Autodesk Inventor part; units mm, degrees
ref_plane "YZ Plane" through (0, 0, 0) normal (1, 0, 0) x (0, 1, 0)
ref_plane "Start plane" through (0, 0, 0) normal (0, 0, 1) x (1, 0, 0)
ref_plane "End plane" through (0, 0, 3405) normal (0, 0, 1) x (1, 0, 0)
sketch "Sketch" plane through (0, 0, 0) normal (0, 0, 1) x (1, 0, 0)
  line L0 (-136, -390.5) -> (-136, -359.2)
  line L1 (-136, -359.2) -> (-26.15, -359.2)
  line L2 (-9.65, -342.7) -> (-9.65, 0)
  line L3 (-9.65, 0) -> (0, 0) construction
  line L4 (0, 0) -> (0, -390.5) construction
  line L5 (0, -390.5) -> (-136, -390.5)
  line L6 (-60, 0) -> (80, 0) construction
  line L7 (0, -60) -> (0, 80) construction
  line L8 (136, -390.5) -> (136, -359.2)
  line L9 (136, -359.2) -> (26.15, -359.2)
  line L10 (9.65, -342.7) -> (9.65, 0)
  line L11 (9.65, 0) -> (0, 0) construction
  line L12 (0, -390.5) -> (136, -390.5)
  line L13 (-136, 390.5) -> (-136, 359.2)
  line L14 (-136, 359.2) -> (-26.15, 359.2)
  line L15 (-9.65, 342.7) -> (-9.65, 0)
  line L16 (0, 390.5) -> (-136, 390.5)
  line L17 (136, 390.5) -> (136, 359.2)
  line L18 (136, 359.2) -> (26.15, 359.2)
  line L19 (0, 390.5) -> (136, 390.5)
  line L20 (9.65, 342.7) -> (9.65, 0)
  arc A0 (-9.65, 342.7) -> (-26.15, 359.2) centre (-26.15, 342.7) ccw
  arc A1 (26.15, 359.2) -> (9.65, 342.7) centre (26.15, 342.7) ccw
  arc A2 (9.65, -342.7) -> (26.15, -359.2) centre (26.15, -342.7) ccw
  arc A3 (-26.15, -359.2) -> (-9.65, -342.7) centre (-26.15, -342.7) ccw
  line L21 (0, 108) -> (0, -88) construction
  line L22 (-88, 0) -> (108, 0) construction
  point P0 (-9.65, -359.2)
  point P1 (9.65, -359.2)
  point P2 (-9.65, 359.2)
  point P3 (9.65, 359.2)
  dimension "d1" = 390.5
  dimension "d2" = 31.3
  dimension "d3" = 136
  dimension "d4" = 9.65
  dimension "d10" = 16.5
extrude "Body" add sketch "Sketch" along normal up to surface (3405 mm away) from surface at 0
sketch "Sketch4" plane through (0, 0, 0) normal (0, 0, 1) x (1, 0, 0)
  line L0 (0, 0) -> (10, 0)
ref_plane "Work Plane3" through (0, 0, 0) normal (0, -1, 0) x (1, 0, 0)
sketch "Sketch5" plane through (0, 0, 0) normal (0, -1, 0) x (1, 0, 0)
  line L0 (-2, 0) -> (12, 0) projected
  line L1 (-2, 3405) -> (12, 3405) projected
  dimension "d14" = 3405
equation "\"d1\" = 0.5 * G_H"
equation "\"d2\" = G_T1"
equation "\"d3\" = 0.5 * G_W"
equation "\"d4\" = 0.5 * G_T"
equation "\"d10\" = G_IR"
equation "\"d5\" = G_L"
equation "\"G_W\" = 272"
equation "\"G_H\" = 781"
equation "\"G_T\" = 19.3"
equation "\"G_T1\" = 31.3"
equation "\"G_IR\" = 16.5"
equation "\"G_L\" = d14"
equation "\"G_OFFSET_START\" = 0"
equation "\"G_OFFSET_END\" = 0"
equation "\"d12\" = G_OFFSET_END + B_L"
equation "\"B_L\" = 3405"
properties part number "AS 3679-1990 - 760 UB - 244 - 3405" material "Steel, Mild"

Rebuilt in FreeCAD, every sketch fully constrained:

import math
import FreeCAD as App
import Part
import Sketcher
from FreeCAD import Vector

doc = App.newDocument("Part")
body = doc.addObject("PartDesign::Body", "Body")

# Sketch on XY plane
sketch1 = doc.addObject("Sketcher::SketchObject", "Sketch")
body.addObject(sketch1)
sketch1.AttachmentSupport = (doc.XY_Plane, [""])
sketch1.MapMode = "FlatFace"
sketch1.addGeometry(Part.LineSegment(Vector(-136, -359.2, 0), Vector(-136, -390.5, 0)), False)
sketch1.addGeometry(Part.LineSegment(Vector(-136, -390.5, 0), Vector(136, -390.5, 0)), False)
sketch1.addGeometry(Part.LineSegment(Vector(136, -390.5, 0), Vector(136, -359.2, 0)), False)
sketch1.addGeometry(Part.LineSegment(Vector(136, -359.2, 0), Vector(26.15, -359.2, 0)), False)
sketch1.addGeometry(Part.ArcOfCircle(Part.Circle(Vector(26.15, -342.7, 0), Vector(0, 0, 1), 16.5), math.radians(180), math.radians(270)), False)
sketch1.addGeometry(Part.LineSegment(Vector(9.65, -342.7, 0), Vector(9.65, 342.7, 0)), False)
sketch1.addGeometry(Part.ArcOfCircle(Part.Circle(Vector(26.15, 342.7, 0), Vector(0, 0, 1), 16.5), math.radians(90), math.radians(180)), False)
sketch1.addGeometry(Part.LineSegment(Vector(26.15, 359.2, 0), Vector(136, 359.2, 0)), False)
sketch1.addGeometry(Part.LineSegment(Vector(136, 359.2, 0), Vector(136, 390.5, 0)), False)
sketch1.addGeometry(Part.LineSegment(Vector(136, 390.5, 0), Vector(-136, 390.5, 0)), False)
sketch1.addGeometry(Part.LineSegment(Vector(-136, 390.5, 0), Vector(-136, 359.2, 0)), False)
sketch1.addGeometry(Part.LineSegment(Vector(-136, 359.2, 0), Vector(-26.15, 359.2, 0)), False)
sketch1.addGeometry(Part.ArcOfCircle(Part.Circle(Vector(-26.15, 342.7, 0), Vector(0, 0, 1), 16.5), math.radians(0), math.radians(90)), False)
sketch1.addGeometry(Part.LineSegment(Vector(-9.65, 342.7, 0), Vector(-9.65, -342.7, 0)), False)
sketch1.addGeometry(Part.ArcOfCircle(Part.Circle(Vector(-26.15, -342.7, 0), Vector(0, 0, 1), 16.5), math.radians(-90), math.radians(0)), False)
sketch1.addGeometry(Part.LineSegment(Vector(-26.15, -359.2, 0), Vector(-136, -359.2, 0)), False)
sketch1.addConstraint(Sketcher.Constraint("Coincident", 0, 2, 1, 1))
sketch1.addConstraint(Sketcher.Constraint("Coincident", 1, 2, 2, 1))
sketch1.addConstraint(Sketcher.Constraint("Coincident", 2, 2, 3, 1))
sketch1.addConstraint(Sketcher.Constraint("Tangent", 3, 2, 4, 2))
sketch1.addConstraint(Sketcher.Constraint("Tangent", 4, 1, 5, 1))
sketch1.addConstraint(Sketcher.Constraint("Tangent", 5, 2, 6, 2))
sketch1.addConstraint(Sketcher.Constraint("Tangent", 6, 1, 7, 1))
sketch1.addConstraint(Sketcher.Constraint("Coincident", 7, 2, 8, 1))
sketch1.addConstraint(Sketcher.Constraint("Coincident", 8, 2, 9, 1))
sketch1.addConstraint(Sketcher.Constraint("Coincident", 9, 2, 10, 1))
sketch1.addConstraint(Sketcher.Constraint("Coincident", 10, 2, 11, 1))
sketch1.addConstraint(Sketcher.Constraint("Tangent", 11, 2, 12, 2))
sketch1.addConstraint(Sketcher.Constraint("Tangent", 12, 1, 13, 1))
sketch1.addConstraint(Sketcher.Constraint("Tangent", 13, 2, 14, 2))
sketch1.addConstraint(Sketcher.Constraint("Tangent", 14, 1, 15, 1))
sketch1.addConstraint(Sketcher.Constraint("Coincident", 15, 2, 0, 1))
sketch1.addConstraint(Sketcher.Constraint("Vertical", 0))
sketch1.addConstraint(Sketcher.Constraint("Horizontal", 1))
sketch1.addConstraint(Sketcher.Constraint("Vertical", 2))
sketch1.addConstraint(Sketcher.Constraint("Horizontal", 3))
sketch1.addConstraint(Sketcher.Constraint("Vertical", 5))
sketch1.addConstraint(Sketcher.Constraint("Horizontal", 7))
sketch1.addConstraint(Sketcher.Constraint("Vertical", 8))
sketch1.addConstraint(Sketcher.Constraint("Horizontal", 9))
sketch1.addConstraint(Sketcher.Constraint("Vertical", 10))
sketch1.addConstraint(Sketcher.Constraint("Horizontal", 11))
sketch1.addConstraint(Sketcher.Constraint("Vertical", 13))
sketch1.addConstraint(Sketcher.Constraint("Horizontal", 15))
sketch1.addConstraint(Sketcher.Constraint("Equal", 4, 6))
sketch1.addConstraint(Sketcher.Constraint("Equal", 6, 12))
sketch1.addConstraint(Sketcher.Constraint("Equal", 12, 14))
sketch1.addConstraint(Sketcher.Constraint("Symmetric", 4, 3, 12, 3, -1, 1))
sketch1.addConstraint(Sketcher.Constraint("Symmetric", 0, 2, 8, 2, -1, 1))
sketch1.addConstraint(Sketcher.Constraint("Symmetric", 7, 2, 10, 2, -2))
sketch1.addConstraint(Sketcher.Constraint("Symmetric", 2, 2, 15, 2, -2))
sketch1.addConstraint(Sketcher.Constraint("Radius", 4, 16.5))
sketch1.addConstraint(Sketcher.Constraint("DistanceY", 0, 2, 0, 1, 31.3))
sketch1.addConstraint(Sketcher.Constraint("DistanceX", 0, 2, -1, 1, 136.0))
sketch1.addConstraint(Sketcher.Constraint("DistanceY", 0, 2, -1, 1, 390.5))
sketch1.addConstraint(Sketcher.Constraint("DistanceX", -1, 1, 4, 1, 9.65))
pad1 = doc.addObject("PartDesign::Pad", "Pad")
body.addObject(pad1)
pad1.Profile = sketch1
pad1.Length = 3405

doc.recompute()
